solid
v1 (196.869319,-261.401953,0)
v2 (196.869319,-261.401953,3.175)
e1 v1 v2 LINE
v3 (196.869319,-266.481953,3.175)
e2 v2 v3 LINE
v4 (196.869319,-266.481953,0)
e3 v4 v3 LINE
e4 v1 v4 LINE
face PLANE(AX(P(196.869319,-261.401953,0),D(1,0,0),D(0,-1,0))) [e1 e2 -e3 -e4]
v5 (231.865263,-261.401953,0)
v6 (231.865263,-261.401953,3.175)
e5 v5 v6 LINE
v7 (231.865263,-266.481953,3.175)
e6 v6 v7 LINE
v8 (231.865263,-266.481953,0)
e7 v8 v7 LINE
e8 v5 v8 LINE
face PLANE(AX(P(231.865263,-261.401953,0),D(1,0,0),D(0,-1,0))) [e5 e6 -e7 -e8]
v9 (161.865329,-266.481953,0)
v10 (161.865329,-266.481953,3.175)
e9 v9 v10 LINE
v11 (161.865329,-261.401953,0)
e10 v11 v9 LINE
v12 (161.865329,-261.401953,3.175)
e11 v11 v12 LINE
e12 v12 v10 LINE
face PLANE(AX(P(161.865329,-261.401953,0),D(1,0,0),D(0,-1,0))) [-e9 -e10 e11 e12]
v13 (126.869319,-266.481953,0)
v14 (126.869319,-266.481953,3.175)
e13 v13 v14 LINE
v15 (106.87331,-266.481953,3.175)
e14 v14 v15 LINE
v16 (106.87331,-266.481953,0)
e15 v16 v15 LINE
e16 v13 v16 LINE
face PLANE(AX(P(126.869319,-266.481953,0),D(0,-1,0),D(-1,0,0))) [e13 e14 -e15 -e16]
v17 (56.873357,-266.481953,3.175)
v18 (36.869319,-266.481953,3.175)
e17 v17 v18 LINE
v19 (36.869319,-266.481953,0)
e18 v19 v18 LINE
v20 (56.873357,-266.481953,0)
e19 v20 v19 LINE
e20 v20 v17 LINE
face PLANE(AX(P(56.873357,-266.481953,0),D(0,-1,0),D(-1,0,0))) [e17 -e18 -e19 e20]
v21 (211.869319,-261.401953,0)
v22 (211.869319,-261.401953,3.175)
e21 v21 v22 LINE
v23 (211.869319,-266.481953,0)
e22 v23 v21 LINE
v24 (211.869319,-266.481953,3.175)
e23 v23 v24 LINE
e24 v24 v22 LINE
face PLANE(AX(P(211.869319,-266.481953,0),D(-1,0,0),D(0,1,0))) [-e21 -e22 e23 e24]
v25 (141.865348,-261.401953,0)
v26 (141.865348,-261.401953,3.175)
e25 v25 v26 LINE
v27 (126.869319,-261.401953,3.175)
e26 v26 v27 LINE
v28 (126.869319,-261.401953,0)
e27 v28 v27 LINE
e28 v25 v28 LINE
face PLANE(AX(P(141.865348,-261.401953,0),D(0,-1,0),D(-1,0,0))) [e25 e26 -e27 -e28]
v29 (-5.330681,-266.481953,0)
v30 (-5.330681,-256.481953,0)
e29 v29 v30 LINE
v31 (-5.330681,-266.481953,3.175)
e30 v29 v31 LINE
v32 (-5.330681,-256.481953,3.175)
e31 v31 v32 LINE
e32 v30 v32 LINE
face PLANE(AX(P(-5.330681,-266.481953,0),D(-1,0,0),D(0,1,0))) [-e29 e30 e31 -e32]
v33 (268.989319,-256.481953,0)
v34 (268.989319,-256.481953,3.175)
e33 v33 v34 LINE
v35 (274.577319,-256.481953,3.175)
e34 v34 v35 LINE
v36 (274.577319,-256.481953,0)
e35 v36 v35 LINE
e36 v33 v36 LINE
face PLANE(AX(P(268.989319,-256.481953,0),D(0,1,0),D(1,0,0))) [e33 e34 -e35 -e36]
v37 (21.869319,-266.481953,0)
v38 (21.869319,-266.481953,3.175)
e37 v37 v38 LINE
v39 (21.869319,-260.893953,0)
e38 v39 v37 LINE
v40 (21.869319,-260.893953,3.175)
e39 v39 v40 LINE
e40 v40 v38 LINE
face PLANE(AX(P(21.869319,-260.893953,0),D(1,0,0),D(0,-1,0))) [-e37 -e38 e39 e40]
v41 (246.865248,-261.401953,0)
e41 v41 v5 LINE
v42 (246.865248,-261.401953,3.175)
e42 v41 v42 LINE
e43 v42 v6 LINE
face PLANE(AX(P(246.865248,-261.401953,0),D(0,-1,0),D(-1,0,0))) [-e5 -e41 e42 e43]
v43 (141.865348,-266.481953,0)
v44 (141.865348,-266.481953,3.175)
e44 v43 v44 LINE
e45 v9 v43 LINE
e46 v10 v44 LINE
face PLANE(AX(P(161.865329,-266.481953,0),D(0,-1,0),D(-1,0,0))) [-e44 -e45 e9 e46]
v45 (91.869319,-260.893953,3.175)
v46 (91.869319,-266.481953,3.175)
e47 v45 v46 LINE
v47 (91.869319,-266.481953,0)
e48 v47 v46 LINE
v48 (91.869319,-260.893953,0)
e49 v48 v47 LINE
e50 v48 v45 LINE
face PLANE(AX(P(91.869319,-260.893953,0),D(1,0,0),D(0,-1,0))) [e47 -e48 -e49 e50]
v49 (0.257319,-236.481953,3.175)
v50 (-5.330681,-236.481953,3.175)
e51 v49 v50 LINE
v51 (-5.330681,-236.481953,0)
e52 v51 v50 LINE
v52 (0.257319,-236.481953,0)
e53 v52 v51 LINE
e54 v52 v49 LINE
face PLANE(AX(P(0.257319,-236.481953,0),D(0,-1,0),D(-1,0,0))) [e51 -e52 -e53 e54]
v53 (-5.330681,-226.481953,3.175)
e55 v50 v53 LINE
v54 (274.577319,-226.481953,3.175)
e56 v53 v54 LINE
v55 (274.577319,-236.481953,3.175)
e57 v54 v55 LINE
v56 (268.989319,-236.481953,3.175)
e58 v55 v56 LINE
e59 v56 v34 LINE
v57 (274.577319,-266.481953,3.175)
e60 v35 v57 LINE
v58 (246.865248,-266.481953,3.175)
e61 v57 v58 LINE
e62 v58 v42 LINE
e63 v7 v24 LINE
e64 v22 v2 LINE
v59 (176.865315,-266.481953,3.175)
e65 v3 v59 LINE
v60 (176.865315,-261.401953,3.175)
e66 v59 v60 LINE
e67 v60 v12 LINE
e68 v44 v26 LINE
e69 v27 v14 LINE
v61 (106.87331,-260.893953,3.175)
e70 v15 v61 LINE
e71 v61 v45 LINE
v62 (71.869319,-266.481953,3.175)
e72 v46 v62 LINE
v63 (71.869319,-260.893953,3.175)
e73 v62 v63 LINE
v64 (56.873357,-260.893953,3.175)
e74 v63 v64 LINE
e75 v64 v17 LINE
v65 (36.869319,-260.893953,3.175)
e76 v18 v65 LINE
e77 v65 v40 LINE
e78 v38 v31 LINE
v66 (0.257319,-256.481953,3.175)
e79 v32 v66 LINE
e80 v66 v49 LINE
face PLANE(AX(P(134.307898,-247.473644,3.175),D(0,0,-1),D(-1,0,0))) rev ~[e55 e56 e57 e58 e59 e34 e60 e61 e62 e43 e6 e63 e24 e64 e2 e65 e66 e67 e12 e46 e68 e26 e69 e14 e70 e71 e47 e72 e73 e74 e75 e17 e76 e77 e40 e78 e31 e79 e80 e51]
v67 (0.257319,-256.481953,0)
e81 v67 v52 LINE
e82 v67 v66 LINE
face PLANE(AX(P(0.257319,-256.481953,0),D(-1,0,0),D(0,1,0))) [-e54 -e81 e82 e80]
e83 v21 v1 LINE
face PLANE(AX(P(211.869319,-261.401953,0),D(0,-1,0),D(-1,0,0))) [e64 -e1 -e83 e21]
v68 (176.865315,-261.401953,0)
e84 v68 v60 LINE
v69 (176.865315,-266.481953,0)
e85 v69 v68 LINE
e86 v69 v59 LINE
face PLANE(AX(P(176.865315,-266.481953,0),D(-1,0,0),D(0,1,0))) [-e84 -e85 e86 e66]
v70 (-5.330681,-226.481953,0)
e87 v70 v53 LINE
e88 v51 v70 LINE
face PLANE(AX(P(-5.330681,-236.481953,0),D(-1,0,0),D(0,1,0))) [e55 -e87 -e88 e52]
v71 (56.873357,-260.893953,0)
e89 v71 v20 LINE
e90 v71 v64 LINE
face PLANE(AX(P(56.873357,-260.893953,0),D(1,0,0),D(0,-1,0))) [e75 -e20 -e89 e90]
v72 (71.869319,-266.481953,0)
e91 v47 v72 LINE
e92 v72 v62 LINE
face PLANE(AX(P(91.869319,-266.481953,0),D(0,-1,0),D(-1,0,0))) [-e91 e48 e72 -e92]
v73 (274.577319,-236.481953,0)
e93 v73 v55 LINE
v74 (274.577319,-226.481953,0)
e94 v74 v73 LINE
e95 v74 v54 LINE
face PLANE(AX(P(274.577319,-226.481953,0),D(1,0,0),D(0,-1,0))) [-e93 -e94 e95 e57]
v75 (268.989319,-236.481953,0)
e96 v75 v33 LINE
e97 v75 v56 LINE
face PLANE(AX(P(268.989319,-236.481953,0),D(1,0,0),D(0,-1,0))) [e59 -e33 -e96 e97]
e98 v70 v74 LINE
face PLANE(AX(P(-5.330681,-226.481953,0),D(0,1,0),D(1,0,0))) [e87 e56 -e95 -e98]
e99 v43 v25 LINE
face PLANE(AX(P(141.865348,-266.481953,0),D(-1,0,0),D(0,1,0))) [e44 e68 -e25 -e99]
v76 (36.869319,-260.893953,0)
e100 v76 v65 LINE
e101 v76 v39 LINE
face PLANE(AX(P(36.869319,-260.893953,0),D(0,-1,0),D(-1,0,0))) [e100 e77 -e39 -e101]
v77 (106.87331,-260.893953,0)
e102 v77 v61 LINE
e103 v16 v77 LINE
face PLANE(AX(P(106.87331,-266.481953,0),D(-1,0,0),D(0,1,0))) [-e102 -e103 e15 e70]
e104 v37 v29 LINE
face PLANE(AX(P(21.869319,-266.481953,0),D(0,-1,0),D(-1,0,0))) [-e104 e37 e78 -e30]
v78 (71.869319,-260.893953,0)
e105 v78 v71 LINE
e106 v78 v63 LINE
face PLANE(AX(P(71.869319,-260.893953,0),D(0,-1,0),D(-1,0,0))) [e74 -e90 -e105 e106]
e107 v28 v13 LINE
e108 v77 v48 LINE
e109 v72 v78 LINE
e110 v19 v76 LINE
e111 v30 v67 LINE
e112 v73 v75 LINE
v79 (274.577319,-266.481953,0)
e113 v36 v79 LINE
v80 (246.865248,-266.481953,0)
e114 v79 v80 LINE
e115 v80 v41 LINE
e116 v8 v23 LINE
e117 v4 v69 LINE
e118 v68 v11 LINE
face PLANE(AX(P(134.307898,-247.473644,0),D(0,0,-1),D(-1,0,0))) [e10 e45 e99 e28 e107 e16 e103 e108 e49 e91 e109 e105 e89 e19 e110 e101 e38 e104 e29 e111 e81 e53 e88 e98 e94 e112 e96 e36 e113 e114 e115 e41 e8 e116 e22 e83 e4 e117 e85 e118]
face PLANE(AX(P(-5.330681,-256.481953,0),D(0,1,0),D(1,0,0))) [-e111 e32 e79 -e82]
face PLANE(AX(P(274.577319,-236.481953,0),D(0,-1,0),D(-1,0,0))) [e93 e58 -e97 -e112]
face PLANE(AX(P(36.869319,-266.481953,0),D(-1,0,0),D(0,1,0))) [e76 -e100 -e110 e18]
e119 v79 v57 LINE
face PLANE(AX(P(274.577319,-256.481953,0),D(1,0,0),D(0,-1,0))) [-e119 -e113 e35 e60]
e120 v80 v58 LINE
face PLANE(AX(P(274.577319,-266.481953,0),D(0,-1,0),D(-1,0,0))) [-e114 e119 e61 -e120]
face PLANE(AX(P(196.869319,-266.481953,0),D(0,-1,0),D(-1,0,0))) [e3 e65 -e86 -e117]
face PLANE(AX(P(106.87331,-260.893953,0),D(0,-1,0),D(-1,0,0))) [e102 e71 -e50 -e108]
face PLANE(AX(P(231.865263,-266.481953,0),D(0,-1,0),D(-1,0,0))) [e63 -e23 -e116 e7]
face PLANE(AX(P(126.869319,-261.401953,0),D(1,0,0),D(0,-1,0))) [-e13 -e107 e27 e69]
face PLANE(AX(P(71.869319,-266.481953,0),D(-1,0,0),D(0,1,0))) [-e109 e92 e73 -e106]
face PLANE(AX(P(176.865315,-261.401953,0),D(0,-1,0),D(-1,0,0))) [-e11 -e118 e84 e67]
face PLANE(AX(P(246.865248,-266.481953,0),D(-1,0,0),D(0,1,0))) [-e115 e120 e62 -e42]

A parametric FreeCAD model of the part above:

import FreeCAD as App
import Part
import Sketcher

V = App.Vector
Q = App.Units.Quantity

doc = App.newDocument("Part")
body = doc.addObject("PartDesign::Body", "Body")

# Sketch on XY plane
sketch1 = body.newObject("Sketcher::SketchObject", "Sketch")
sketch1.AttachmentSupport = (doc.getObject("XY_Plane"), [""])
sketch1.MapMode = "FlatFace"
sketch1.addGeometry(Part.LineSegment(V(274.577319, -226.481953, 0), V(-5.330681, -226.481953, 0)), False)
sketch1.addGeometry(Part.LineSegment(V(-5.330681, -226.481953, 0), V(-5.330681, -236.481953, 0)), False)
sketch1.addGeometry(Part.LineSegment(V(-5.330681, -236.481953, 0), V(0.257319, -236.481953, 0)), False)
sketch1.addGeometry(Part.LineSegment(V(0.257319, -236.481953, 0), V(0.257319, -256.481953, 0)), False)
sketch1.addGeometry(Part.LineSegment(V(0.257319, -256.481953, 0), V(-5.330681, -256.481953, 0)), False)
sketch1.addGeometry(Part.LineSegment(V(-5.330681, -256.481953, 0), V(-5.330681, -266.481953, 0)), False)
sketch1.addGeometry(Part.LineSegment(V(-5.330681, -266.481953, 0), V(21.869319, -266.481953, 0)), False)
sketch1.addGeometry(Part.LineSegment(V(21.869319, -266.481953, 0), V(21.869319, -260.893953, 0)), False)
sketch1.addGeometry(Part.LineSegment(V(21.869319, -260.893953, 0), V(36.869319, -260.893953, 0)), False)
sketch1.addGeometry(Part.LineSegment(V(36.869319, -260.893953, 0), V(36.869319, -266.481953, 0)), False)
sketch1.addGeometry(Part.LineSegment(V(36.869319, -266.481953, 0), V(56.873357, -266.481953, 0)), False)
sketch1.addGeometry(Part.LineSegment(V(56.873357, -266.481953, 0), V(56.873357, -260.893953, 0)), False)
sketch1.addGeometry(Part.LineSegment(V(56.873357, -260.893953, 0), V(71.869319, -260.893953, 0)), False)
sketch1.addGeometry(Part.LineSegment(V(71.869319, -260.893953, 0), V(71.869319, -266.481953, 0)), False)
sketch1.addGeometry(Part.LineSegment(V(71.869319, -266.481953, 0), V(91.869319, -266.481953, 0)), False)
sketch1.addGeometry(Part.LineSegment(V(91.869319, -266.481953, 0), V(91.869319, -260.893953, 0)), False)
sketch1.addGeometry(Part.LineSegment(V(91.869319, -260.893953, 0), V(106.87331, -260.893953, 0)), False)
sketch1.addGeometry(Part.LineSegment(V(106.87331, -260.893953, 0), V(106.87331, -266.481953, 0)), False)
sketch1.addGeometry(Part.LineSegment(V(106.87331, -266.481953, 0), V(126.869319, -266.481953, 0)), False)
sketch1.addGeometry(Part.LineSegment(V(126.869319, -266.481953, 0), V(126.869319, -261.401953, 0)), False)
sketch1.addGeometry(Part.LineSegment(V(126.869319, -261.401953, 0), V(141.865348, -261.401953, 0)), False)
sketch1.addGeometry(Part.LineSegment(V(141.865348, -261.401953, 0), V(141.865348, -266.481953, 0)), False)
sketch1.addGeometry(Part.LineSegment(V(141.865348, -266.481953, 0), V(161.865329, -266.481953, 0)), False)
sketch1.addGeometry(Part.LineSegment(V(161.865329, -266.481953, 0), V(161.865329, -261.401953, 0)), False)
sketch1.addGeometry(Part.LineSegment(V(161.865329, -261.401953, 0), V(176.865315, -261.401953, 0)), False)
sketch1.addGeometry(Part.LineSegment(V(176.865315, -261.401953, 0), V(176.865315, -266.481953, 0)), False)
sketch1.addGeometry(Part.LineSegment(V(176.865315, -266.481953, 0), V(196.869319, -266.481953, 0)), False)
sketch1.addGeometry(Part.LineSegment(V(196.869319, -266.481953, 0), V(196.869319, -261.401953, 0)), False)
sketch1.addGeometry(Part.LineSegment(V(196.869319, -261.401953, 0), V(211.869319, -261.401953, 0)), False)
sketch1.addGeometry(Part.LineSegment(V(211.869319, -261.401953, 0), V(211.869319, -266.481953, 0)), False)
sketch1.addGeometry(Part.LineSegment(V(211.869319, -266.481953, 0), V(231.865263, -266.481953, 0)), False)
sketch1.addGeometry(Part.LineSegment(V(231.865263, -266.481953, 0), V(231.865263, -261.401953, 0)), False)
sketch1.addGeometry(Part.LineSegment(V(231.865263, -261.401953, 0), V(246.865248, -261.401953, 0)), False)
sketch1.addGeometry(Part.LineSegment(V(246.865248, -261.401953, 0), V(246.865248, -266.481953, 0)), False)
sketch1.addGeometry(Part.LineSegment(V(246.865248, -266.481953, 0), V(274.577319, -266.481953, 0)), False)
sketch1.addGeometry(Part.LineSegment(V(274.577319, -266.481953, 0), V(274.577319, -256.481953, 0)), False)
sketch1.addGeometry(Part.LineSegment(V(274.577319, -256.481953, 0), V(268.989319, -256.481953, 0)), False)
sketch1.addGeometry(Part.LineSegment(V(268.989319, -256.481953, 0), V(268.989319, -236.481953, 0)), False)
sketch1.addGeometry(Part.LineSegment(V(268.989319, -236.481953, 0), V(274.577319, -236.481953, 0)), False)
sketch1.addGeometry(Part.LineSegment(V(274.577319, -236.481953, 0), V(274.577319, -226.481953, 0)), False)
sketch1.addConstraint(Sketcher.Constraint("Coincident", 0, 2, 1, 1))
sketch1.addConstraint(Sketcher.Constraint("Coincident", 1, 2, 2, 1))
sketch1.addConstraint(Sketcher.Constraint("Coincident", 2, 2, 3, 1))
sketch1.addConstraint(Sketcher.Constraint("Coincident", 3, 2, 4, 1))
sketch1.addConstraint(Sketcher.Constraint("Coincident", 4, 2, 5, 1))
sketch1.addConstraint(Sketcher.Constraint("Coincident", 5, 2, 6, 1))
sketch1.addConstraint(Sketcher.Constraint("Coincident", 6, 2, 7, 1))
sketch1.addConstraint(Sketcher.Constraint("Coincident", 7, 2, 8, 1))
sketch1.addConstraint(Sketcher.Constraint("Coincident", 8, 2, 9, 1))
sketch1.addConstraint(Sketcher.Constraint("Coincident", 9, 2, 10, 1))
sketch1.addConstraint(Sketcher.Constraint("Coincident", 10, 2, 11, 1))
sketch1.addConstraint(Sketcher.Constraint("Coincident", 11, 2, 12, 1))
sketch1.addConstraint(Sketcher.Constraint("Coincident", 12, 2, 13, 1))
sketch1.addConstraint(Sketcher.Constraint("Coincident", 13, 2, 14, 1))
sketch1.addConstraint(Sketcher.Constraint("Coincident", 14, 2, 15, 1))
sketch1.addConstraint(Sketcher.Constraint("Coincident", 15, 2, 16, 1))
sketch1.addConstraint(Sketcher.Constraint("Coincident", 16, 2, 17, 1))
sketch1.addConstraint(Sketcher.Constraint("Coincident", 17, 2, 18, 1))
sketch1.addConstraint(Sketcher.Constraint("Coincident", 18, 2, 19, 1))
sketch1.addConstraint(Sketcher.Constraint("Coincident", 19, 2, 20, 1))
sketch1.addConstraint(Sketcher.Constraint("Coincident", 20, 2, 21, 1))
sketch1.addConstraint(Sketcher.Constraint("Coincident", 21, 2, 22, 1))
sketch1.addConstraint(Sketcher.Constraint("Coincident", 22, 2, 23, 1))
sketch1.addConstraint(Sketcher.Constraint("Coincident", 23, 2, 24, 1))
sketch1.addConstraint(Sketcher.Constraint("Coincident", 24, 2, 25, 1))
sketch1.addConstraint(Sketcher.Constraint("Coincident", 25, 2, 26, 1))
sketch1.addConstraint(Sketcher.Constraint("Coincident", 26, 2, 27, 1))
sketch1.addConstraint(Sketcher.Constraint("Coincident", 27, 2, 28, 1))
sketch1.addConstraint(Sketcher.Constraint("Coincident", 28, 2, 29, 1))
sketch1.addConstraint(Sketcher.Constraint("Coincident", 29, 2, 30, 1))
sketch1.addConstraint(Sketcher.Constraint("Coincident", 30, 2, 31, 1))
sketch1.addConstraint(Sketcher.Constraint("Coincident", 31, 2, 32, 1))
sketch1.addConstraint(Sketcher.Constraint("Coincident", 32, 2, 33, 1))
sketch1.addConstraint(Sketcher.Constraint("Coincident", 33, 2, 34, 1))
sketch1.addConstraint(Sketcher.Constraint("Coincident", 34, 2, 35, 1))
sketch1.addConstraint(Sketcher.Constraint("Coincident", 35, 2, 36, 1))
sketch1.addConstraint(Sketcher.Constraint("Coincident", 36, 2, 37, 1))
sketch1.addConstraint(Sketcher.Constraint("Coincident", 37, 2, 38, 1))
sketch1.addConstraint(Sketcher.Constraint("Coincident", 38, 2, 39, 1))
sketch1.addConstraint(Sketcher.Constraint("Coincident", 39, 2, 0, 1))
sketch1.addConstraint(Sketcher.Constraint("Horizontal", 0))
sketch1.addConstraint(Sketcher.Constraint("Vertical", 1))
sketch1.addConstraint(Sketcher.Constraint("Horizontal", 2))
sketch1.addConstraint(Sketcher.Constraint("Vertical", 3))
sketch1.addConstraint(Sketcher.Constraint("Horizontal", 4))
sketch1.addConstraint(Sketcher.Constraint("Vertical", 5))
sketch1.addConstraint(Sketcher.Constraint("Horizontal", 6))
sketch1.addConstraint(Sketcher.Constraint("Vertical", 7))
sketch1.addConstraint(Sketcher.Constraint("Horizontal", 8))
sketch1.addConstraint(Sketcher.Constraint("Vertical", 9))
sketch1.addConstraint(Sketcher.Constraint("Horizontal", 10))
sketch1.addConstraint(Sketcher.Constraint("Vertical", 11))
sketch1.addConstraint(Sketcher.Constraint("Horizontal", 12))
sketch1.addConstraint(Sketcher.Constraint("Vertical", 13))
sketch1.addConstraint(Sketcher.Constraint("Horizontal", 14))
sketch1.addConstraint(Sketcher.Constraint("Vertical", 15))
sketch1.addConstraint(Sketcher.Constraint("Horizontal", 16))
sketch1.addConstraint(Sketcher.Constraint("Vertical", 17))
sketch1.addConstraint(Sketcher.Constraint("Horizontal", 18))
sketch1.addConstraint(Sketcher.Constraint("Vertical", 19))
sketch1.addConstraint(Sketcher.Constraint("Horizontal", 20))
sketch1.addConstraint(Sketcher.Constraint("Vertical", 21))
sketch1.addConstraint(Sketcher.Constraint("Horizontal", 22))
sketch1.addConstraint(Sketcher.Constraint("Vertical", 23))
sketch1.addConstraint(Sketcher.Constraint("Horizontal", 24))
sketch1.addConstraint(Sketcher.Constraint("Vertical", 25))
sketch1.addConstraint(Sketcher.Constraint("Horizontal", 26))
sketch1.addConstraint(Sketcher.Constraint("Vertical", 27))
sketch1.addConstraint(Sketcher.Constraint("Horizontal", 28))
sketch1.addConstraint(Sketcher.Constraint("Vertical", 29))
sketch1.addConstraint(Sketcher.Constraint("Horizontal", 30))
sketch1.addConstraint(Sketcher.Constraint("Vertical", 31))
sketch1.addConstraint(Sketcher.Constraint("Horizontal", 32))
sketch1.addConstraint(Sketcher.Constraint("Vertical", 33))
sketch1.addConstraint(Sketcher.Constraint("Horizontal", 34))
sketch1.addConstraint(Sketcher.Constraint("Vertical", 35))
sketch1.addConstraint(Sketcher.Constraint("Horizontal", 36))
sketch1.addConstraint(Sketcher.Constraint("Vertical", 37))
sketch1.addConstraint(Sketcher.Constraint("Horizontal", 38))
sketch1.addConstraint(Sketcher.Constraint("Vertical", 39))
sketch1.addConstraint(Sketcher.Constraint("Horizontal", 6, 2, 9, 2))
sketch1.addConstraint(Sketcher.Constraint("Horizontal", 8, 2, 11, 2))
sketch1.addConstraint(Sketcher.Constraint("Horizontal", 10, 2, 13, 2))
sketch1.addConstraint(Sketcher.Constraint("Horizontal", 12, 2, 15, 2))
sketch1.addConstraint(Sketcher.Constraint("Horizontal", 14, 2, 17, 2))
sketch1.addConstraint(Sketcher.Constraint("Horizontal", 18, 2, 21, 2))
sketch1.addConstraint(Sketcher.Constraint("Horizontal", 20, 2, 23, 2))
sketch1.addConstraint(Sketcher.Constraint("Horizontal", 22, 2, 25, 2))
sketch1.addConstraint(Sketcher.Constraint("Horizontal", 24, 2, 27, 2))
sketch1.addConstraint(Sketcher.Constraint("Horizontal", 26, 2, 29, 2))
sketch1.addConstraint(Sketcher.Constraint("Horizontal", 28, 2, 31, 2))
sketch1.addConstraint(Sketcher.Constraint("Horizontal", 30, 2, 33, 2))
sketch1.addConstraint(Sketcher.Constraint("Horizontal", 4, 2, 35, 2))
sketch1.addConstraint(Sketcher.Constraint("Horizontal", 2, 2, 37, 2))
sketch1.addConstraint(Sketcher.Constraint("Vertical", 1, 2, 4, 2))
sketch1.addConstraint(Sketcher.Constraint("Vertical", 35, 2, 38, 2))
sketch1.addConstraint(Sketcher.Constraint("Equal", 8, 28))
sketch1.addConstraint(Sketcher.Constraint("Equal", 24, 32))
sketch1.addConstraint(Sketcher.Constraint("Equal", 4, 36))
sketch1.addConstraint(Sketcher.Constraint("Equal", 14, 3))
sketch1.addConstraint(Sketcher.Constraint("Equal", 1, 5))
sketch1.addConstraint(Sketcher.Constraint("Equal", 38, 7))
sketch1.addConstraint(Sketcher.Constraint("DistanceX", 8, 1, 8, 2, Q("15 mm")))
sketch1.addConstraint(Sketcher.Constraint("DistanceX", 14, 1, 14, 2, Q("20 mm")))
sketch1.addConstraint(Sketcher.Constraint("DistanceY", 1, 2, 1, 1, Q("10 mm")))
sketch1.addConstraint(Sketcher.Constraint("DistanceX", 6, 1, 6, 2, Q("27.2 mm")))
sketch1.addConstraint(Sketcher.Constraint("DistanceX", 8, 2, 12, 2, Q("35 mm")))
sketch1.addConstraint(Sketcher.Constraint("DistanceX", 14, 2, 18, 2, Q("35 mm")))
sketch1.addConstraint(Sketcher.Constraint("DistanceY", 19, 1, 19, 2, Q("5.08 mm")))
sketch1.addConstraint(Sketcher.Constraint("DistanceX", 0, 2, 0, 1, Q("279.908 mm")))
sketch1.addConstraint(Sketcher.Constraint("DistanceX", 2, 1, 2, 2, Q("5.588 mm")))
sketch1.addConstraint(Sketcher.Constraint("DistanceX", 29, 2, 34, 2, Q("62.708 mm")))
sketch1.addConstraint(Sketcher.Constraint("DistanceX", 16, 1, 16, 2, Q("15.003991 mm")))
sketch1.addConstraint(Sketcher.Constraint("DistanceX", 20, 1, 20, 2, Q("14.996028 mm")))
sketch1.addConstraint(Sketcher.Constraint("DistanceX", 22, 1, 22, 2, Q("19.999981 mm")))
sketch1.addConstraint(Sketcher.Constraint("DistanceX", 34, 1, 34, 2, Q("27.712071 mm")))
sketch1.addConstraint(Sketcher.Constraint("DistanceX", 10, 1, 10, 2, Q("20.004038 mm")))
sketch1.addConstraint(Sketcher.Constraint("DistanceX", 24, 1, 24, 2, Q("14.999986 mm")))
sketch1.addConstraint(Sketcher.Constraint("DistanceX", 0, 2, -1, 1, Q("5.330681 mm")))
sketch1.addConstraint(Sketcher.Constraint("DistanceY", 0, 2, -1, 1, Q("226.481953 mm")))
pad1 = body.newObject("PartDesign::Pad", "Pad")
pad1.Profile = sketch1
pad1.Length = 3.175

doc.recompute()
